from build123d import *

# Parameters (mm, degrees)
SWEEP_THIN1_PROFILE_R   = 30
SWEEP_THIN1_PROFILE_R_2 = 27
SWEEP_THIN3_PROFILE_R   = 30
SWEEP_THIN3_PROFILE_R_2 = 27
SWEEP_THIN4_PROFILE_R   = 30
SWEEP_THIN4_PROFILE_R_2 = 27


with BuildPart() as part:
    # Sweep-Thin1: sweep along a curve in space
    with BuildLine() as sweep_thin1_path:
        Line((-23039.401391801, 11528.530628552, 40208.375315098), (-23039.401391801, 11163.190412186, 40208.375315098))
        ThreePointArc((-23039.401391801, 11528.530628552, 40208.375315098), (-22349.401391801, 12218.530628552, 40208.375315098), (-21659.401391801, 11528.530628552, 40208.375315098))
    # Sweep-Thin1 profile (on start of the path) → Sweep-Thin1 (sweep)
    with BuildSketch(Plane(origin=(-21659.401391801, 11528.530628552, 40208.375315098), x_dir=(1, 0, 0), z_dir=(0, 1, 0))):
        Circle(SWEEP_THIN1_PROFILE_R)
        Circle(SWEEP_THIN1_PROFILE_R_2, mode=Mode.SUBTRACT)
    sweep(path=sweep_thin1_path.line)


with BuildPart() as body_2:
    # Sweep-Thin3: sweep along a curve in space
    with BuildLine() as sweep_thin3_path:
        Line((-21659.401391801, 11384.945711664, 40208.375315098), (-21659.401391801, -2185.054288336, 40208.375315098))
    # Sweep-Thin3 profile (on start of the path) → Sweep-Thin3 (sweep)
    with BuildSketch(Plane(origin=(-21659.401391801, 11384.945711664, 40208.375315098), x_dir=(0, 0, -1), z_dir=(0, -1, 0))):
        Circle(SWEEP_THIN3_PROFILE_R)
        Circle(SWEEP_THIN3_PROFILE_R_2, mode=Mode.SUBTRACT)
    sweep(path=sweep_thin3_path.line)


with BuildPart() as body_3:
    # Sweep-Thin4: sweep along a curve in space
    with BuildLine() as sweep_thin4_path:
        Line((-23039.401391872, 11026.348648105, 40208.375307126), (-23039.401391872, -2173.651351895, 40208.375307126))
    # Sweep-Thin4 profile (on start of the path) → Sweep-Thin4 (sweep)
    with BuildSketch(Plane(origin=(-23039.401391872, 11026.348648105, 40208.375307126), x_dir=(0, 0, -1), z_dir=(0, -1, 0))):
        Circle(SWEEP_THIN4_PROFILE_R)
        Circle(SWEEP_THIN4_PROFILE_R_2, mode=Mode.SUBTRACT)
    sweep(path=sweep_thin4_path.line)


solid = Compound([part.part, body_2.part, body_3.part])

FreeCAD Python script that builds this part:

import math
import FreeCAD as App
import Part
import Sketcher
from FreeCAD import Vector
Q = App.Units.Quantity

doc = App.newDocument("Part")
body = doc.addObject("PartDesign::Body", "Body")

sketch1 = body.newObject("Sketcher::SketchObject", "Sketch")
sketch1.AttachmentSupport = (doc.getObject("XZ_Plane"), [""])
sketch1.MapMode = "FlatFace"
sketch1.AttachmentOffset = App.Placement(Vector(0, 0, -11528.530629), App.Rotation())
sketch1.addGeometry([
    Part.Circle(Vector(-21659.401392, 40208.375315, 0), Vector(0, 0, 1), 30),
    Part.Circle(Vector(-21659.401392, 40208.375315, 0), Vector(0, 0, 1), 27),
], False)
sketch1.addConstraint([
    Sketcher.Constraint("Coincident", 1, 3, 0, 3),
    Sketcher.Constraint("Diameter", 0, Q("60 mm")),
    Sketcher.Constraint("Diameter", 1, Q("54 mm")),
    Sketcher.Constraint("DistanceX", 0, 3, -1, 1, Q("21659.401392 mm")),
    Sketcher.Constraint("DistanceY", -1, 1, 0, 3, Q("40208.375315 mm")),
])

sketch2 = body.newObject("Sketcher::SketchObject", "Sketch001")
sketch2.AttachmentSupport = (doc.getObject("XY_Plane"), [""])
sketch2.MapMode = "FlatFace"
sketch2.AttachmentOffset = App.Placement(Vector(0, 0, 40208.375315), App.Rotation())
sketch2.addGeometry([
    Part.ArcOfCircle(Part.Circle(Vector(-22349.401392, 11528.530629, 0), Vector(0, 0, 1), 690), math.radians(0), math.radians(180)),
    Part.LineSegment(Vector(-23039.401392, 11528.530629, 0), Vector(-23039.401392, 11163.190412, 0)),
], False)
sketch2.addConstraint([
    Sketcher.Constraint("Tangent", 0, 2, 1, 1),
    Sketcher.Constraint("Vertical", 1),
    Sketcher.Constraint("Radius", 0, Q("690 mm")),
    Sketcher.Constraint("DistanceY", 1, 2, 1, 1, Q("365.340216 mm")),
    Sketcher.Constraint("DistanceX", 0, 3, -1, 1, Q("22349.401392 mm")),
    Sketcher.Constraint("DistanceY", -1, 1, 0, 3, Q("11528.530629 mm")),
    Sketcher.Constraint("DistanceY", -1, 1, 0, 1, Q("11528.530629 mm")),
])
doc.recompute()

additivepipe = body.newObject("PartDesign::AdditivePipe", "AdditivePipe")
additivepipe.Profile = sketch1
additivepipe.Spine = (sketch2, ["Edge1", "Edge2"])
body2 = doc.addObject("PartDesign::Body", "Body001")

sketch3 = body2.newObject("Sketcher::SketchObject", "Sketch002")
sketch3.AttachmentSupport = (doc.getObject("XZ_Plane001"), [""])
sketch3.MapMode = "FlatFace"
sketch3.AttachmentOffset = App.Placement(Vector(0, 0, -11384.945712), App.Rotation())
sketch3.addGeometry([
    Part.Circle(Vector(-21659.401392, 40208.375315, 0), Vector(0, 0, 1), 30),
    Part.Circle(Vector(-21659.401392, 40208.375315, 0), Vector(0, 0, 1), 27),
], False)
sketch3.addConstraint([
    Sketcher.Constraint("Coincident", 1, 3, 0, 3),
    Sketcher.Constraint("Diameter", 0, Q("60 mm")),
    Sketcher.Constraint("Diameter", 1, Q("54 mm")),
    Sketcher.Constraint("DistanceX", 0, 3, -1, 1, Q("21659.401392 mm")),
    Sketcher.Constraint("DistanceY", -1, 1, 0, 3, Q("40208.375315 mm")),
])

sketch4 = body2.newObject("Sketcher::SketchObject", "Sketch003")
sketch4.AttachmentSupport = (doc.getObject("XY_Plane001"), [""])
sketch4.MapMode = "FlatFace"
sketch4.AttachmentOffset = App.Placement(Vector(0, 0, 40208.375315), App.Rotation())
sketch4.addGeometry(Part.LineSegment(Vector(-21659.401392, 11384.945712, 0), Vector(-21659.401392, -2185.054288, 0)), False)
sketch4.addConstraint([
    Sketcher.Constraint("Vertical", 0),
    Sketcher.Constraint("DistanceY", 0, 2, 0, 1, Q("13570 mm")),
    Sketcher.Constraint("DistanceX", 0, 1, -1, 1, Q("21659.401392 mm")),
    Sketcher.Constraint("DistanceY", -1, 1, 0, 1, Q("11384.945712 mm")),
])
doc.recompute()

additivepipe2 = body2.newObject("PartDesign::AdditivePipe", "AdditivePipe001")
additivepipe2.Profile = sketch3
additivepipe2.Spine = (sketch4, ["Edge1"])
body3 = doc.addObject("PartDesign::Body", "Body002")

sketch5 = body3.newObject("Sketcher::SketchObject", "Sketch004")
sketch5.AttachmentSupport = (doc.getObject("XZ_Plane002"), [""])
sketch5.MapMode = "FlatFace"
sketch5.AttachmentOffset = App.Placement(Vector(0, 0, -11026.348648), App.Rotation())
sketch5.addGeometry([
    Part.Circle(Vector(-23039.401392, 40208.375307, 0), Vector(0, 0, 1), 30),
    Part.Circle(Vector(-23039.401392, 40208.375307, 0), Vector(0, 0, 1), 27),
], False)
sketch5.addConstraint([
    Sketcher.Constraint("Coincident", 1, 3, 0, 3),
    Sketcher.Constraint("Diameter", 0, Q("60 mm")),
    Sketcher.Constraint("Diameter", 1, Q("54 mm")),
    Sketcher.Constraint("DistanceX", 0, 3, -1, 1, Q("23039.401392 mm")),
    Sketcher.Constraint("DistanceY", -1, 1, 0, 3, Q("40208.375307 mm")),
])

sketch6 = body3.newObject("Sketcher::SketchObject", "Sketch005")
sketch6.AttachmentSupport = (doc.getObject("XY_Plane002"), [""])
sketch6.MapMode = "FlatFace"
sketch6.AttachmentOffset = App.Placement(Vector(0, 0, 40208.375307), App.Rotation())
sketch6.addGeometry(Part.LineSegment(Vector(-23039.401392, 11026.348648, 0), Vector(-23039.401392, -2173.651352, 0)), False)
sketch6.addConstraint([
    Sketcher.Constraint("Vertical", 0),
    Sketcher.Constraint("DistanceY", 0, 2, 0, 1, Q("13200 mm")),
    Sketcher.Constraint("DistanceX", 0, 1, -1, 1, Q("23039.401392 mm")),
    Sketcher.Constraint("DistanceY", -1, 1, 0, 1, Q("11026.348648 mm")),
])
doc.recompute()

additivepipe3 = body3.newObject("PartDesign::AdditivePipe", "AdditivePipe002")
additivepipe3.Profile = sketch5
additivepipe3.Spine = (sketch6, ["Edge1"])

doc.recompute()
